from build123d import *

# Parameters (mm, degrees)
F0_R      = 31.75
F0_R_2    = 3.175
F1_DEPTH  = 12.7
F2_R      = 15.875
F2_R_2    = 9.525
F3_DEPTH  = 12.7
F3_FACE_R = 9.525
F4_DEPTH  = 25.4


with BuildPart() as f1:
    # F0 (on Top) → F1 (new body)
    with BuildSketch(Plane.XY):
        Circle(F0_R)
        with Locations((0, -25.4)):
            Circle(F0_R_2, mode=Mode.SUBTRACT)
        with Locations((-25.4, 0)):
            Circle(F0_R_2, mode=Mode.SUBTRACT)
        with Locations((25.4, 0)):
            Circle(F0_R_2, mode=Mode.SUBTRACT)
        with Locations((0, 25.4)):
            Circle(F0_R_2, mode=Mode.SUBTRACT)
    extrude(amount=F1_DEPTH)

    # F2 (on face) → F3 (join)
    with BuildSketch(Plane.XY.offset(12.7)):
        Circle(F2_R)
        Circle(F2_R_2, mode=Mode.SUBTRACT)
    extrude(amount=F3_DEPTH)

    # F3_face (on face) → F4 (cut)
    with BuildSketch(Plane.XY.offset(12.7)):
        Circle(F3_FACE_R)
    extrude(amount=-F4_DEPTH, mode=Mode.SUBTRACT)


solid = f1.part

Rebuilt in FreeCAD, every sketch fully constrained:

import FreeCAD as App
import Part
import Sketcher
from FreeCAD import Vector
Q = App.Units.Quantity

doc = App.newDocument("Part")
body = doc.addObject("PartDesign::Body", "Body")

sketch1 = body.newObject("Sketcher::SketchObject", "Sketch")
sketch1.AttachmentSupport = (doc.getObject("XY_Plane"), [""])
sketch1.MapMode = "FlatFace"
sketch1.addGeometry(Part.Circle(Vector(0, 0, 0), Vector(0, 0, 1), 31.8), False)
sketch1.addGeometry(Part.Circle(Vector(0, -25.4, 0), Vector(0, 0, 1), 3.2), False)
sketch1.addGeometry(Part.Circle(Vector(-25.4, 0, 0), Vector(0, 0, 1), 3.2), False)
sketch1.addGeometry(Part.Circle(Vector(25.4, 0, 0), Vector(0, 0, 1), 3.2), False)
sketch1.addGeometry(Part.Circle(Vector(0, 25.4, 0), Vector(0, 0, 1), 3.2), False)
sketch1.addConstraint(Sketcher.Constraint("Coincident", 0, 3, -1, 1))
sketch1.addConstraint(Sketcher.Constraint("Equal", 1, 2))
sketch1.addConstraint(Sketcher.Constraint("Equal", 2, 3))
sketch1.addConstraint(Sketcher.Constraint("Equal", 3, 4))
sketch1.addConstraint(Sketcher.Constraint("Symmetric", 2, 3, 3, 3, -1, 1))
sketch1.addConstraint(Sketcher.Constraint("Symmetric", 1, 3, 4, 3, -1, 1))
sketch1.addConstraint(Sketcher.Constraint("PointOnObject", 1, 3, -2))
sketch1.addConstraint(Sketcher.Constraint("PointOnObject", 2, 3, -1))
sketch1.addConstraint(Sketcher.Constraint("Diameter", 0, Q("2.5 in")))
sketch1.addConstraint(Sketcher.Constraint("Diameter", 1, Q("0.25 in")))
sketch1.addConstraint(Sketcher.Constraint("DistanceY", 1, 3, -1, 1, Q("1 in")))
sketch1.addConstraint(Sketcher.Constraint("DistanceX", 2, 3, -1, 1, Q("1 in")))
pad1 = body.newObject("PartDesign::Pad", "Pad")
pad1.Profile = sketch1
pad1.Length = Q("0.5 in")

sketch2 = body.newObject("Sketcher::SketchObject", "Sketch001")
sketch2.AttachmentSupport = (doc.getObject("XY_Plane"), [""])
sketch2.MapMode = "FlatFace"
sketch2.AttachmentOffset = App.Placement(Vector(0, 0, 0.5 * 25.4), App.Rotation())
sketch2.addGeometry(Part.Circle(Vector(0, 0, 0), Vector(0, 0, 1), 16), False)
sketch2.addGeometry(Part.Circle(Vector(0, 0, 0), Vector(0, 0, 1), 10), False)
sketch2.addConstraint(Sketcher.Constraint("Coincident", 0, 3, -1, 1))
sketch2.addConstraint(Sketcher.Constraint("Coincident", 1, 3, -1, 1))
sketch2.addConstraint(Sketcher.Constraint("Diameter", 0, Q("1.25 in")))
sketch2.addConstraint(Sketcher.Constraint("Diameter", 1, Q("0.75 in")))
pad2 = body.newObject("PartDesign::Pad", "Pad001")
pad2.Profile = sketch2
pad2.Length = Q("0.5 in")

sketch3 = body.newObject("Sketcher::SketchObject", "Sketch002")
sketch3.AttachmentSupport = (doc.getObject("XY_Plane"), [""])
sketch3.MapMode = "FlatFace"
sketch3.AttachmentOffset = App.Placement(Vector(0, 0, 0.5 * 25.4), App.Rotation())
sketch3.addGeometry(Part.Circle(Vector(0, 0, 0), Vector(0, 0, 1), 10), False)
sketch3.addConstraint(Sketcher.Constraint("Coincident", 0, 3, -1, 1))
sketch3.addConstraint(Sketcher.Constraint("Diameter", 0, Q("0.75 in")))
pocket1 = body.newObject("PartDesign::Pocket", "Pocket")
pocket1.Profile = sketch3
pocket1.Length = Q("1 in")

doc.recompute()
